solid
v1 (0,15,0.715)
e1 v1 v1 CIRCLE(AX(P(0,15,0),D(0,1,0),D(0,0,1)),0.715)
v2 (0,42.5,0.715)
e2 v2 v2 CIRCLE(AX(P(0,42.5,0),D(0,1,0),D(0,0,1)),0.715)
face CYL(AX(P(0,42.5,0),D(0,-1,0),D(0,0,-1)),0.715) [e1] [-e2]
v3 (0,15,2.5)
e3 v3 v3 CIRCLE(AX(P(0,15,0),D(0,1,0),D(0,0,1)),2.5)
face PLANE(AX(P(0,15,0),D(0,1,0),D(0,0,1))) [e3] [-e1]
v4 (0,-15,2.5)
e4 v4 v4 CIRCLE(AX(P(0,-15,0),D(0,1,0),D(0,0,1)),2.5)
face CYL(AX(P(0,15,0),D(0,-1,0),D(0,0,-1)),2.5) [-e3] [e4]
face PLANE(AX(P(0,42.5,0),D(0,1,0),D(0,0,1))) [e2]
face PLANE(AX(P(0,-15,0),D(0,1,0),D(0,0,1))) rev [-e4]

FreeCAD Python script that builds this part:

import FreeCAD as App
import Part
import Sketcher
from FreeCAD import Vector
Q = App.Units.Quantity

doc = App.newDocument("Part")
body = doc.addObject("PartDesign::Body", "Body")

# Sketch on XZ plane
sketch1 = body.newObject("Sketcher::SketchObject", "Sketch")
sketch1.AttachmentSupport = (doc.getObject("XZ_Plane"), [""])
sketch1.MapMode = "FlatFace"
sketch1.addGeometry(Part.Circle(Vector(0, 0, 0), Vector(0, 0, 1), 2.5), False)
sketch1.addConstraint(Sketcher.Constraint("Coincident", 0, 3, -1, 1))
sketch1.addConstraint(Sketcher.Constraint("Diameter", 0, Q("5 mm")))
pad1 = body.newObject("PartDesign::Pad", "Pad")
pad1.Profile = sketch1
pad1.Length = 30
pad1.Midplane = True

# Sketch on XZ plane
sketch2 = body.newObject("Sketcher::SketchObject", "Sketch001")
sketch2.AttachmentSupport = (doc.getObject("XZ_Plane"), [""])
sketch2.MapMode = "FlatFace"
sketch2.AttachmentOffset = App.Placement(Vector(0, 0, -15), App.Rotation())
sketch2.addGeometry(Part.Circle(Vector(0, 0, 0), Vector(0, 0, 1), 0.7), False)
sketch2.addConstraint(Sketcher.Constraint("Coincident", 0, 3, -1, 1))
sketch2.addConstraint(Sketcher.Constraint("Diameter", 0, Q("1.43 mm")))
pad2 = body.newObject("PartDesign::Pad", "Pad001")
pad2.Profile = sketch2
pad2.Length = 27.5
pad2.Reversed = True

doc.recompute()
